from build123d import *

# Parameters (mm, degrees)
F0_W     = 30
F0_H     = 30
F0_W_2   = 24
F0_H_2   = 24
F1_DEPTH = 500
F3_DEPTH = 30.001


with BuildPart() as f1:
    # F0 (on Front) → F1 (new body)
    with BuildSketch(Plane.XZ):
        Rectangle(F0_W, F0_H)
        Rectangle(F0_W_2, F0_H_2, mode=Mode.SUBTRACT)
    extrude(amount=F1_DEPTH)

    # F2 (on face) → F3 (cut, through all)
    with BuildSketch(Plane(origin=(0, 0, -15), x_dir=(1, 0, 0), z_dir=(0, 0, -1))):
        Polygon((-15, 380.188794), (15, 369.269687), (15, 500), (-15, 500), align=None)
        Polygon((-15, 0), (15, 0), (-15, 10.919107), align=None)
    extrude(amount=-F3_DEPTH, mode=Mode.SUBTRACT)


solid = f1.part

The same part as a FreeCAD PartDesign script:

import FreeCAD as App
import Part
import Sketcher
from FreeCAD import Vector
Q = App.Units.Quantity

doc = App.newDocument("Part")
body = doc.addObject("PartDesign::Body", "Body")

# Sketch on XZ plane
sketch1 = doc.addObject("Sketcher::SketchObject", "Sketch")
body.addObject(sketch1)
sketch1.AttachmentSupport = (doc.XZ_Plane, [""])
sketch1.MapMode = "FlatFace"
sketch1.addGeometry(Part.LineSegment(Vector(-15, 15, 0), Vector(-15, -15, 0)), False)
sketch1.addGeometry(Part.LineSegment(Vector(-15, -15, 0), Vector(15, -15, 0)), False)
sketch1.addGeometry(Part.LineSegment(Vector(15, -15, 0), Vector(15, 15, 0)), False)
sketch1.addGeometry(Part.LineSegment(Vector(15, 15, 0), Vector(-15, 15, 0)), False)
sketch1.addGeometry(Part.LineSegment(Vector(12, -12, 0), Vector(-12, -12, 0)), False)
sketch1.addGeometry(Part.LineSegment(Vector(-12, -12, 0), Vector(-12, 12, 0)), False)
sketch1.addGeometry(Part.LineSegment(Vector(-12, 12, 0), Vector(12, 12, 0)), False)
sketch1.addGeometry(Part.LineSegment(Vector(12, 12, 0), Vector(12, -12, 0)), False)
sketch1.addConstraint(Sketcher.Constraint("Coincident", 0, 2, 1, 1))
sketch1.addConstraint(Sketcher.Constraint("Coincident", 1, 2, 2, 1))
sketch1.addConstraint(Sketcher.Constraint("Coincident", 2, 2, 3, 1))
sketch1.addConstraint(Sketcher.Constraint("Coincident", 3, 2, 0, 1))
sketch1.addConstraint(Sketcher.Constraint("Coincident", 4, 2, 5, 1))
sketch1.addConstraint(Sketcher.Constraint("Coincident", 5, 2, 6, 1))
sketch1.addConstraint(Sketcher.Constraint("Coincident", 6, 2, 7, 1))
sketch1.addConstraint(Sketcher.Constraint("Coincident", 7, 2, 4, 1))
sketch1.addConstraint(Sketcher.Constraint("Vertical", 0))
sketch1.addConstraint(Sketcher.Constraint("Horizontal", 1))
sketch1.addConstraint(Sketcher.Constraint("Vertical", 2))
sketch1.addConstraint(Sketcher.Constraint("Horizontal", 3))
sketch1.addConstraint(Sketcher.Constraint("Horizontal", 4))
sketch1.addConstraint(Sketcher.Constraint("Vertical", 5))
sketch1.addConstraint(Sketcher.Constraint("Horizontal", 6))
sketch1.addConstraint(Sketcher.Constraint("Vertical", 7))
sketch1.addConstraint(Sketcher.Constraint("Symmetric", 0, 2, 2, 2, -1, 1))
sketch1.addConstraint(Sketcher.Constraint("Symmetric", 4, 2, 6, 2, -1, 1))
sketch1.addConstraint(Sketcher.Constraint("Equal", 3, 0))
sketch1.addConstraint(Sketcher.Constraint("Equal", 6, 5))
sketch1.addConstraint(Sketcher.Constraint("DistanceX", 1, 1, 1, 2, 30.0))
sketch1.addConstraint(Sketcher.Constraint("DistanceX", 4, 2, 4, 1, 24.0))
pad1 = doc.addObject("PartDesign::Pad", "Pad")
body.addObject(pad1)
pad1.Profile = sketch1
pad1.Length = 500

# Sketch on XY plane
sketch2 = doc.addObject("Sketcher::SketchObject", "Sketch001")
body.addObject(sketch2)
sketch2.AttachmentSupport = (doc.XY_Plane, [""])
sketch2.MapMode = "FlatFace"
sketch2.AttachmentOffset = App.Placement(Vector(0, 0, -15), App.Rotation())
sketch2.addGeometry(Part.LineSegment(Vector(-15, -380.188794, 0), Vector(15, -369.269687, 0)), False)
sketch2.addGeometry(Part.LineSegment(Vector(15, -369.269687, 0), Vector(15, -500, 0)), False)
sketch2.addGeometry(Part.LineSegment(Vector(15, -500, 0), Vector(-15, -500, 0)), False)
sketch2.addGeometry(Part.LineSegment(Vector(-15, -500, 0), Vector(-15, -380.188794, 0)), False)
sketch2.addGeometry(Part.LineSegment(Vector(-15, 0, 0), Vector(15, 0, 0)), False)
sketch2.addGeometry(Part.LineSegment(Vector(15, 0, 0), Vector(-15, -10.919107, 0)), False)
sketch2.addGeometry(Part.LineSegment(Vector(-15, -10.919107, 0), Vector(-15, 0, 0)), False)
sketch2.addConstraint(Sketcher.Constraint("Coincident", 0, 2, 1, 1))
sketch2.addConstraint(Sketcher.Constraint("Coincident", 1, 2, 2, 1))
sketch2.addConstraint(Sketcher.Constraint("Coincident", 2, 2, 3, 1))
sketch2.addConstraint(Sketcher.Constraint("Coincident", 3, 2, 0, 1))
sketch2.addConstraint(Sketcher.Constraint("Coincident", 4, 2, 5, 1))
sketch2.addConstraint(Sketcher.Constraint("Coincident", 5, 2, 6, 1))
sketch2.addConstraint(Sketcher.Constraint("Coincident", 6, 2, 4, 1))
sketch2.addConstraint(Sketcher.Constraint("Vertical", 1))
sketch2.addConstraint(Sketcher.Constraint("Horizontal", 2))
sketch2.addConstraint(Sketcher.Constraint("Vertical", 3))
sketch2.addConstraint(Sketcher.Constraint("Horizontal", 4))
sketch2.addConstraint(Sketcher.Constraint("Vertical", 6))
sketch2.addConstraint(Sketcher.Constraint("Symmetric", 4, 2, 6, 2, -1, 1))
sketch2.addConstraint(Sketcher.Constraint("Parallel", 0, 5))
sketch2.addConstraint(Sketcher.Constraint("Vertical", 1, 2, 4, 2))
sketch2.addConstraint(Sketcher.Constraint("Vertical", 3, 2, 5, 2))
sketch2.addConstraint(Sketcher.Constraint("DistanceX", 2, 2, 2, 1, 30.0))
sketch2.addConstraint(Sketcher.Constraint("Angle", 0, Q("20 deg")))
sketch2.addConstraint(Sketcher.Constraint("DistanceY", 1, 2, -1, 1, 500.0))
sketch2.addConstraint(Sketcher.Constraint("DistanceY", 1, 2, 1, 1, 130.730313))
pocket1 = doc.addObject("PartDesign::Pocket", "Pocket")
body.addObject(pocket1)
pocket1.Profile = sketch2
pocket1.Type = "ThroughAll"
pocket1.Reversed = True

doc.recompute()
